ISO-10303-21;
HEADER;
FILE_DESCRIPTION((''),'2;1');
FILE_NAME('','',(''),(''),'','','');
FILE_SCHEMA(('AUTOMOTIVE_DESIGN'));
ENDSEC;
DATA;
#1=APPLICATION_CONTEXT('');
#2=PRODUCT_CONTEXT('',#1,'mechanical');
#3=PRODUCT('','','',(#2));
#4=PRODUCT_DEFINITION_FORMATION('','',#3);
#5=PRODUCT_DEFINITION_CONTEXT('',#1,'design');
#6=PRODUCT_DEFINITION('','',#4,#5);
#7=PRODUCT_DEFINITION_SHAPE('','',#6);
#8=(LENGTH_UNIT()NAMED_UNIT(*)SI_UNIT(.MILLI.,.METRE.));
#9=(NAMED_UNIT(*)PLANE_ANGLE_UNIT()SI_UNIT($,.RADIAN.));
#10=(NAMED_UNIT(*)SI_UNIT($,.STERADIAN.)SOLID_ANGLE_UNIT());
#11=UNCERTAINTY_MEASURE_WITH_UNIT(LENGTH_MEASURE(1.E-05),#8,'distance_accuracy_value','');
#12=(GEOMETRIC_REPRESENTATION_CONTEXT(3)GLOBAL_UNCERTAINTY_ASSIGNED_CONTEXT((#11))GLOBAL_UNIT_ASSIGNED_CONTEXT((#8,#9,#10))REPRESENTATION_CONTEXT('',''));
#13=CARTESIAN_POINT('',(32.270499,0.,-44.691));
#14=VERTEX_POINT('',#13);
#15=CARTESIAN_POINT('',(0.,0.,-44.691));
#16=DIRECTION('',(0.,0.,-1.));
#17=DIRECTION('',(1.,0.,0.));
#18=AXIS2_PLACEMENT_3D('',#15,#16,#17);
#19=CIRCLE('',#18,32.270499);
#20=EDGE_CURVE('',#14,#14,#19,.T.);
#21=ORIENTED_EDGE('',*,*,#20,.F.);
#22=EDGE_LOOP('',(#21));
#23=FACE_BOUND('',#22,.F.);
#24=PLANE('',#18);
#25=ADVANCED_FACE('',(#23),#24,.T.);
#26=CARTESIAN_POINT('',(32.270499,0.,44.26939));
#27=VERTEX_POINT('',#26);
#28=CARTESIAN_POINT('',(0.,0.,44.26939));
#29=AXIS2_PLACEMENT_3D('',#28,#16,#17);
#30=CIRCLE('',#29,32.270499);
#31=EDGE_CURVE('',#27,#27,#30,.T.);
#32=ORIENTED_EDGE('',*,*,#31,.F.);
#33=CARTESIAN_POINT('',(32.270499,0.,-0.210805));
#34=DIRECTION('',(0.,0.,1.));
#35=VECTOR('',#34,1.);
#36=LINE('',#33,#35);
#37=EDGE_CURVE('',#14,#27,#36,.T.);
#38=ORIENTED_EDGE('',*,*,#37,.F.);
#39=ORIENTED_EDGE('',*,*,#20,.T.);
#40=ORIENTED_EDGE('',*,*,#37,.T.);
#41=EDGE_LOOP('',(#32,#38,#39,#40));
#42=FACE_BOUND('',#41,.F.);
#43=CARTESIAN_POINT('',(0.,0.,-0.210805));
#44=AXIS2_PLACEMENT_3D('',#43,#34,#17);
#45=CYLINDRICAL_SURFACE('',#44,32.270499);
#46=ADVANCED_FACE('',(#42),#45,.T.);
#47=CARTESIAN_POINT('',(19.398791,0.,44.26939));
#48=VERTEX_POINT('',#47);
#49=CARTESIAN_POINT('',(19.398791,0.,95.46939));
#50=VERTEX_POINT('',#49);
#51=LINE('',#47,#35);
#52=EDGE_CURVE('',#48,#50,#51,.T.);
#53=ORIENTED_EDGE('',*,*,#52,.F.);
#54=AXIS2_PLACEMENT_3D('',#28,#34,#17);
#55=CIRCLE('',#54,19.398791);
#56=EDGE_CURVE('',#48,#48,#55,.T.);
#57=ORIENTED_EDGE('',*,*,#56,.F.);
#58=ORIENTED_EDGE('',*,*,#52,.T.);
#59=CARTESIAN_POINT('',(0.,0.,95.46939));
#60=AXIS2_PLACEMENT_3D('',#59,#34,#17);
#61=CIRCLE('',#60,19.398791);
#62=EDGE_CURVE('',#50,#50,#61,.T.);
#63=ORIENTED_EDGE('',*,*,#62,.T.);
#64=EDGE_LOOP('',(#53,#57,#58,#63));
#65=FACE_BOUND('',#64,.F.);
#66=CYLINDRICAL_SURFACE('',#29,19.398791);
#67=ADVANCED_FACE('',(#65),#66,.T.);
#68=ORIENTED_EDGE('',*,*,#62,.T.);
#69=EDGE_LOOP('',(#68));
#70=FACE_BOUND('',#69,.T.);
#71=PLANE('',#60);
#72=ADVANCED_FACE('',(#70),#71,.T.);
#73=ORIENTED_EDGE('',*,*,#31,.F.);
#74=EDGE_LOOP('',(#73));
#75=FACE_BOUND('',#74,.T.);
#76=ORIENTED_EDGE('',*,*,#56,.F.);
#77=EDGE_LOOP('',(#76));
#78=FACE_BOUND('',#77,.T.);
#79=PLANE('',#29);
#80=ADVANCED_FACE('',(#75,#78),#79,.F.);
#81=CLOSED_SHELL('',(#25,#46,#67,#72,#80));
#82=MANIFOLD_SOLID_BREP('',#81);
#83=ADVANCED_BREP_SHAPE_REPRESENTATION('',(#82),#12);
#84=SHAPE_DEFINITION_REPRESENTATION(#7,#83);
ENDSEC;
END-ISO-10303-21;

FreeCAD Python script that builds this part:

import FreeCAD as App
import Part
import Sketcher
Q = App.Units.Quantity

doc = App.newDocument("Part")
params = doc.addObject("Spreadsheet::Sheet", "Params")
for row, (alias, value) in enumerate([
    ("revolution_angle", "360 deg"),
    ("pad1_length", "51.2 mm"),
], start=1):
    params.set(f"A{row}", alias)
    params.set(f"B{row}", "=" + value)
    params.setAlias(f"B{row}", alias)

body = doc.addObject("PartDesign::Body", "Body")

# Sketch on XZ plane
sketch1 = doc.addObject("Sketcher::SketchObject", "Sketch")
body.addObject(sketch1)
sketch1.AttachmentSupport = (doc.XZ_Plane, [""])
sketch1.MapMode = "FlatFace"
sketch1.addGeometry([
    Part.LineSegment(App.Vector(0, 44, 0), App.Vector(0, -45, 0)),
    Part.LineSegment(App.Vector(0, -45, 0), App.Vector(32, -45, 0)),
    Part.LineSegment(App.Vector(32, -45, 0), App.Vector(32, 44, 0)),
    Part.LineSegment(App.Vector(32, 44, 0), App.Vector(0, 44, 0)),
], False)
sketch1.addConstraint([
    Sketcher.Constraint("Coincident", 0, 2, 1, 1),
    Sketcher.Constraint("Coincident", 1, 2, 2, 1),
    Sketcher.Constraint("Coincident", 2, 2, 3, 1),
    Sketcher.Constraint("Coincident", 3, 2, 0, 1),
    Sketcher.Constraint("Vertical", 0),
    Sketcher.Constraint("Horizontal", 1),
    Sketcher.Constraint("Vertical", 2),
    Sketcher.Constraint("Horizontal", 3),
    Sketcher.Constraint("PointOnObject", 0, 2, -2),
    Sketcher.Constraint("DistanceX", 1, 1, 1, 2, Q("32.270499 mm")),
    Sketcher.Constraint("DistanceY", 0, 2, -1, 1, Q("44.691 mm")),
    Sketcher.Constraint("DistanceY", 0, 2, 0, 1, Q("88.960391 mm")),
])
revolution = doc.addObject("PartDesign::Revolution", "Revolution")
body.addObject(revolution)
revolution.Profile = sketch1
revolution.ReferenceAxis = (sketch1, ["V_Axis"])
revolution.setExpression("Angle", "Params.revolution_angle")

# Sketch on XY plane
sketch2 = doc.addObject("Sketcher::SketchObject", "Sketch001")
body.addObject(sketch2)
sketch2.AttachmentSupport = (doc.XY_Plane, [""])
sketch2.MapMode = "FlatFace"
sketch2.AttachmentOffset = App.Placement(App.Vector(0, 0, 44.26939), App.Rotation())
sketch2.addGeometry(Part.Circle(App.Vector(0, 0, 0), App.Vector(0, 0, 1), 19), False)
sketch2.addConstraint([
    Sketcher.Constraint("Coincident", 0, 3, -1, 1),
    Sketcher.Constraint("Diameter", 0, Q("38.797582 mm")),
])
pad1 = doc.addObject("PartDesign::Pad", "Pad")
body.addObject(pad1)
pad1.Profile = sketch2
pad1.setExpression("Length", "Params.pad1_length")

doc.recompute()
